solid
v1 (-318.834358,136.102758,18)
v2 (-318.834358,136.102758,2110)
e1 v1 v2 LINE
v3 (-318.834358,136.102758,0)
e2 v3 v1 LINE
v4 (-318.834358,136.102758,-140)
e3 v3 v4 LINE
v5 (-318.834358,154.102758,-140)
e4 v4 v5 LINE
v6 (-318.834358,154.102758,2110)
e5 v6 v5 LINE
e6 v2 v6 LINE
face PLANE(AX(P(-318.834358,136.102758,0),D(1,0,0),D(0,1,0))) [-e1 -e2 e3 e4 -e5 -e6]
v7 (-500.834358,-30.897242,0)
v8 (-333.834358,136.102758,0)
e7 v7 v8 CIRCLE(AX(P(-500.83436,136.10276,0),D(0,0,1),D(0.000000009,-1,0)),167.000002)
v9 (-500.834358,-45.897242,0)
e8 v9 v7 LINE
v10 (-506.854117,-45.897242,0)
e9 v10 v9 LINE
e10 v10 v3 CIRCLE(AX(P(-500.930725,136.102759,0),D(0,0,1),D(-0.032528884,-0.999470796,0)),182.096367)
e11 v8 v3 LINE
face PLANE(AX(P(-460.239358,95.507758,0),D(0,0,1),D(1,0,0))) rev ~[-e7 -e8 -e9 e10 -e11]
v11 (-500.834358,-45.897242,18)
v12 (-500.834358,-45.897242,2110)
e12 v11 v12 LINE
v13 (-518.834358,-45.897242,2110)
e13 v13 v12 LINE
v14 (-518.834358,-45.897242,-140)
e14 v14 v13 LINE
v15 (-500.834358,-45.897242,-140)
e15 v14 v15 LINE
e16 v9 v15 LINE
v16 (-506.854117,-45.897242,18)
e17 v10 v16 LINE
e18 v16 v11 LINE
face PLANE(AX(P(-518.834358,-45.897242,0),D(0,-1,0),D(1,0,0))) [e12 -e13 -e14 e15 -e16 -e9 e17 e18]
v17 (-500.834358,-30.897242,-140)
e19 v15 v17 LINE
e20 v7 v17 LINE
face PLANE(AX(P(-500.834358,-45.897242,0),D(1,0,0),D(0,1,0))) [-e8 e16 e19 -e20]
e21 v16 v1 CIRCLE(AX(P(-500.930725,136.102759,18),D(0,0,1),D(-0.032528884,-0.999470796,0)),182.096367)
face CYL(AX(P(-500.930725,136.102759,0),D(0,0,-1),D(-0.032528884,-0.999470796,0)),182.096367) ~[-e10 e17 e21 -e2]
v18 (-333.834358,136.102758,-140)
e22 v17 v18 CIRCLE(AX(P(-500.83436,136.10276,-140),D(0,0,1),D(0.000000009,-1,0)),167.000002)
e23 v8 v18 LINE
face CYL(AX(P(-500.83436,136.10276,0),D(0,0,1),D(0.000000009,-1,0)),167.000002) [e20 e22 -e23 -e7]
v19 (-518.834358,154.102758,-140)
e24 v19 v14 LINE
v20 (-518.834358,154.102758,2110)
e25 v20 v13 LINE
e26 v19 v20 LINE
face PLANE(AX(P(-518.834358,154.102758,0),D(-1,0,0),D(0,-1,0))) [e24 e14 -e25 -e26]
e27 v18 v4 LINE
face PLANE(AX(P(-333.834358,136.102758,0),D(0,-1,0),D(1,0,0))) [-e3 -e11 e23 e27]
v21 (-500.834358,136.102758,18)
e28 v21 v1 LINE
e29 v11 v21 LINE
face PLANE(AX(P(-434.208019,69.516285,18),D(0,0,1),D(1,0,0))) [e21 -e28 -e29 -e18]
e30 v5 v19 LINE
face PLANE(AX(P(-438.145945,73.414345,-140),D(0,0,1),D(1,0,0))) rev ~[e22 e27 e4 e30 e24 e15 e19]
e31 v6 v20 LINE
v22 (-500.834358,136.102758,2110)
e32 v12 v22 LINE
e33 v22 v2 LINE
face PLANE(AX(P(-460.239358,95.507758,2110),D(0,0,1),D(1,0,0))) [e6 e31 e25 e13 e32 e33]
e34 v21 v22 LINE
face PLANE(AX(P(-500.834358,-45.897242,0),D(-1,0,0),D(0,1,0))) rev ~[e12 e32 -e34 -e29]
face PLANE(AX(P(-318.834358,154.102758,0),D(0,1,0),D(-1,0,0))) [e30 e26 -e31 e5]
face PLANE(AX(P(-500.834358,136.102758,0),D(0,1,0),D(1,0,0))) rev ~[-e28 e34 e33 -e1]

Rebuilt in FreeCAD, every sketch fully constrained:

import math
import FreeCAD as App
import Part
import Sketcher
from FreeCAD import Vector
Q = App.Units.Quantity

doc = App.newDocument("Part")
body = doc.addObject("PartDesign::Body", "Body")

# Sketch on XY plane
sketch1 = body.newObject("Sketcher::SketchObject", "Sketch")
sketch1.AttachmentSupport = (doc.getObject("XY_Plane"), [""])
sketch1.MapMode = "FlatFace"
sketch1.addGeometry([
    Part.LineSegment(Vector(-318.834358, 154.102758, 0), Vector(-518.834358, 154.102758, 0)),  # 0
    Part.LineSegment(Vector(-518.834358, 154.102758, 0), Vector(-518.834358, -45.897242, 0)),  # 1
    Part.LineSegment(Vector(-518.834358, -45.897242, 0), Vector(-500.834358, -45.897242, 0)),  # 2
    Part.LineSegment(Vector(-500.834358, -45.897242, 0), Vector(-500.834358, 136.102758, 0)),  # 3
    Part.LineSegment(Vector(-500.834358, 136.102758, 0), Vector(-318.834358, 136.102758, 0)),  # 4
    Part.LineSegment(Vector(-318.834358, 136.102758, 0), Vector(-318.834358, 154.102758, 0)),  # 5
], False)
sketch1.addConstraint([
    Sketcher.Constraint("Coincident", 0, 2, 1, 1),
    Sketcher.Constraint("Coincident", 1, 2, 2, 1),
    Sketcher.Constraint("Coincident", 2, 2, 3, 1),
    Sketcher.Constraint("Coincident", 3, 2, 4, 1),
    Sketcher.Constraint("Coincident", 4, 2, 5, 1),
    Sketcher.Constraint("Coincident", 5, 2, 0, 1),
    Sketcher.Constraint("Horizontal", 0),
    Sketcher.Constraint("Vertical", 1),
    Sketcher.Constraint("Horizontal", 2),
    Sketcher.Constraint("Vertical", 3),
    Sketcher.Constraint("Horizontal", 4),
    Sketcher.Constraint("Vertical", 5),
    Sketcher.Constraint("Equal", 0, 1),
    Sketcher.Constraint("Equal", 4, 3),
    Sketcher.Constraint("DistanceX", 0, 2, 0, 1, Q("200 mm")),
    Sketcher.Constraint("DistanceX", 2, 1, 2, 2, Q("18 mm")),
    Sketcher.Constraint("DistanceX", 0, 2, -1, 1, Q("518.834358 mm")),
    Sketcher.Constraint("DistanceY", -1, 1, 0, 2, Q("154.102758 mm")),
])
pad1 = body.newObject("PartDesign::Pad", "Pad")
pad1.Profile = sketch1
pad1.Length = 2110

# Sketch on XY plane
sketch2 = body.newObject("Sketcher::SketchObject", "Sketch001")
sketch2.AttachmentSupport = (doc.getObject("XY_Plane"), [""])
sketch2.MapMode = "FlatFace"
sketch2.addGeometry([
    Part.LineSegment(Vector(-318.834358, 154.102758, 0), Vector(-518.834358, 154.102758, 0)),  # 0
    Part.LineSegment(Vector(-518.834358, 154.102758, 0), Vector(-518.834358, -45.897242, 0)),  # 1
    Part.LineSegment(Vector(-518.834358, -45.897242, 0), Vector(-506.854117, -45.897242, 0)),  # 2
    Part.ArcOfCircle(Part.Circle(Vector(-500.930725, 136.102759, 0), Vector(0, 0, 1), 182.096367), math.radians(-91.864097), math.radians(0)),  # 3
    Part.LineSegment(Vector(-318.834358, 136.102758, 0), Vector(-318.834358, 154.102758, 0)),  # 4
], False)
sketch2.addConstraint([
    Sketcher.Constraint("Coincident", 0, 2, 1, 1),
    Sketcher.Constraint("Coincident", 1, 2, 2, 1),
    Sketcher.Constraint("Coincident", 2, 2, 3, 1),
    Sketcher.Constraint("Tangent", 3, 2, 4, 1),
    Sketcher.Constraint("Coincident", 4, 2, 0, 1),
    Sketcher.Constraint("Horizontal", 0),
    Sketcher.Constraint("Vertical", 1),
    Sketcher.Constraint("Horizontal", 2),
    Sketcher.Constraint("Vertical", 4),
    Sketcher.Constraint("Equal", 0, 1),
    Sketcher.Constraint("DistanceX", 0, 2, 0, 1, Q("200 mm")),
    Sketcher.Constraint("DistanceY", 4, 1, 4, 2, Q("18 mm")),
    Sketcher.Constraint("Radius", 3, Q("182.096367 mm")),
    Sketcher.Constraint("DistanceY", -1, 1, 3, 3, Q("136.102759 mm")),
    Sketcher.Constraint("DistanceX", 0, 2, -1, 1, Q("518.834358 mm")),
])
pad2 = body.newObject("PartDesign::Pad", "Pad001")
pad2.Profile = sketch2
pad2.Length = 18

# Sketch on XY plane
sketch3 = body.newObject("Sketcher::SketchObject", "Sketch002")
sketch3.AttachmentSupport = (doc.getObject("XY_Plane"), [""])
sketch3.MapMode = "FlatFace"
sketch3.addGeometry([
    Part.LineSegment(Vector(-318.834358, 154.102758, 0), Vector(-518.834358, 154.102758, 0)),  # 0
    Part.LineSegment(Vector(-518.834358, 154.102758, 0), Vector(-518.834358, -45.897242, 0)),  # 1
    Part.LineSegment(Vector(-518.834358, -45.897242, 0), Vector(-500.834358, -45.897242, 0)),  # 2
    Part.LineSegment(Vector(-500.834358, -45.897242, 0), Vector(-500.834358, -30.897242, 0)),  # 3
    Part.ArcOfCircle(Part.Circle(Vector(-500.83436, 136.10276, 0), Vector(0, 0, 1), 167.000002), math.radians(-89.999999), math.radians(-0.000001)),  # 4
    Part.LineSegment(Vector(-333.834358, 136.102758, 0), Vector(-318.834358, 136.102758, 0)),  # 5
    Part.LineSegment(Vector(-318.834358, 136.102758, 0), Vector(-318.834358, 154.102758, 0)),  # 6
], False)
sketch3.addConstraint([
    Sketcher.Constraint("Coincident", 0, 2, 1, 1),
    Sketcher.Constraint("Coincident", 1, 2, 2, 1),
    Sketcher.Constraint("Coincident", 2, 2, 3, 1),
    Sketcher.Constraint("Coincident", 3, 2, 4, 1),
    Sketcher.Constraint("Coincident", 4, 2, 5, 1),
    Sketcher.Constraint("Coincident", 5, 2, 6, 1),
    Sketcher.Constraint("Coincident", 6, 2, 0, 1),
    Sketcher.Constraint("Horizontal", 0),
    Sketcher.Constraint("Vertical", 1),
    Sketcher.Constraint("Horizontal", 2),
    Sketcher.Constraint("Vertical", 3),
    Sketcher.Constraint("Horizontal", 5),
    Sketcher.Constraint("Vertical", 6),
    Sketcher.Constraint("Vertical", 4, 3, 2, 2),
    Sketcher.Constraint("Equal", 0, 1),
    Sketcher.Constraint("Equal", 5, 3),
    Sketcher.Constraint("Equal", 2, 6),
    Sketcher.Constraint("Radius", 4, Q("167.000002 mm")),
    Sketcher.Constraint("DistanceX", 0, 2, 0, 1, Q("200 mm")),
    Sketcher.Constraint("DistanceX", 2, 1, 2, 2, Q("18 mm")),
    Sketcher.Constraint("DistanceX", 4, 3, -1, 1, Q("500.83436 mm")),
    Sketcher.Constraint("DistanceY", -1, 1, 4, 3, Q("136.10276 mm")),
])
pad3 = body.newObject("PartDesign::Pad", "Pad002")
pad3.Profile = sketch3
pad3.Length = 140
pad3.Reversed = True

doc.recompute()
